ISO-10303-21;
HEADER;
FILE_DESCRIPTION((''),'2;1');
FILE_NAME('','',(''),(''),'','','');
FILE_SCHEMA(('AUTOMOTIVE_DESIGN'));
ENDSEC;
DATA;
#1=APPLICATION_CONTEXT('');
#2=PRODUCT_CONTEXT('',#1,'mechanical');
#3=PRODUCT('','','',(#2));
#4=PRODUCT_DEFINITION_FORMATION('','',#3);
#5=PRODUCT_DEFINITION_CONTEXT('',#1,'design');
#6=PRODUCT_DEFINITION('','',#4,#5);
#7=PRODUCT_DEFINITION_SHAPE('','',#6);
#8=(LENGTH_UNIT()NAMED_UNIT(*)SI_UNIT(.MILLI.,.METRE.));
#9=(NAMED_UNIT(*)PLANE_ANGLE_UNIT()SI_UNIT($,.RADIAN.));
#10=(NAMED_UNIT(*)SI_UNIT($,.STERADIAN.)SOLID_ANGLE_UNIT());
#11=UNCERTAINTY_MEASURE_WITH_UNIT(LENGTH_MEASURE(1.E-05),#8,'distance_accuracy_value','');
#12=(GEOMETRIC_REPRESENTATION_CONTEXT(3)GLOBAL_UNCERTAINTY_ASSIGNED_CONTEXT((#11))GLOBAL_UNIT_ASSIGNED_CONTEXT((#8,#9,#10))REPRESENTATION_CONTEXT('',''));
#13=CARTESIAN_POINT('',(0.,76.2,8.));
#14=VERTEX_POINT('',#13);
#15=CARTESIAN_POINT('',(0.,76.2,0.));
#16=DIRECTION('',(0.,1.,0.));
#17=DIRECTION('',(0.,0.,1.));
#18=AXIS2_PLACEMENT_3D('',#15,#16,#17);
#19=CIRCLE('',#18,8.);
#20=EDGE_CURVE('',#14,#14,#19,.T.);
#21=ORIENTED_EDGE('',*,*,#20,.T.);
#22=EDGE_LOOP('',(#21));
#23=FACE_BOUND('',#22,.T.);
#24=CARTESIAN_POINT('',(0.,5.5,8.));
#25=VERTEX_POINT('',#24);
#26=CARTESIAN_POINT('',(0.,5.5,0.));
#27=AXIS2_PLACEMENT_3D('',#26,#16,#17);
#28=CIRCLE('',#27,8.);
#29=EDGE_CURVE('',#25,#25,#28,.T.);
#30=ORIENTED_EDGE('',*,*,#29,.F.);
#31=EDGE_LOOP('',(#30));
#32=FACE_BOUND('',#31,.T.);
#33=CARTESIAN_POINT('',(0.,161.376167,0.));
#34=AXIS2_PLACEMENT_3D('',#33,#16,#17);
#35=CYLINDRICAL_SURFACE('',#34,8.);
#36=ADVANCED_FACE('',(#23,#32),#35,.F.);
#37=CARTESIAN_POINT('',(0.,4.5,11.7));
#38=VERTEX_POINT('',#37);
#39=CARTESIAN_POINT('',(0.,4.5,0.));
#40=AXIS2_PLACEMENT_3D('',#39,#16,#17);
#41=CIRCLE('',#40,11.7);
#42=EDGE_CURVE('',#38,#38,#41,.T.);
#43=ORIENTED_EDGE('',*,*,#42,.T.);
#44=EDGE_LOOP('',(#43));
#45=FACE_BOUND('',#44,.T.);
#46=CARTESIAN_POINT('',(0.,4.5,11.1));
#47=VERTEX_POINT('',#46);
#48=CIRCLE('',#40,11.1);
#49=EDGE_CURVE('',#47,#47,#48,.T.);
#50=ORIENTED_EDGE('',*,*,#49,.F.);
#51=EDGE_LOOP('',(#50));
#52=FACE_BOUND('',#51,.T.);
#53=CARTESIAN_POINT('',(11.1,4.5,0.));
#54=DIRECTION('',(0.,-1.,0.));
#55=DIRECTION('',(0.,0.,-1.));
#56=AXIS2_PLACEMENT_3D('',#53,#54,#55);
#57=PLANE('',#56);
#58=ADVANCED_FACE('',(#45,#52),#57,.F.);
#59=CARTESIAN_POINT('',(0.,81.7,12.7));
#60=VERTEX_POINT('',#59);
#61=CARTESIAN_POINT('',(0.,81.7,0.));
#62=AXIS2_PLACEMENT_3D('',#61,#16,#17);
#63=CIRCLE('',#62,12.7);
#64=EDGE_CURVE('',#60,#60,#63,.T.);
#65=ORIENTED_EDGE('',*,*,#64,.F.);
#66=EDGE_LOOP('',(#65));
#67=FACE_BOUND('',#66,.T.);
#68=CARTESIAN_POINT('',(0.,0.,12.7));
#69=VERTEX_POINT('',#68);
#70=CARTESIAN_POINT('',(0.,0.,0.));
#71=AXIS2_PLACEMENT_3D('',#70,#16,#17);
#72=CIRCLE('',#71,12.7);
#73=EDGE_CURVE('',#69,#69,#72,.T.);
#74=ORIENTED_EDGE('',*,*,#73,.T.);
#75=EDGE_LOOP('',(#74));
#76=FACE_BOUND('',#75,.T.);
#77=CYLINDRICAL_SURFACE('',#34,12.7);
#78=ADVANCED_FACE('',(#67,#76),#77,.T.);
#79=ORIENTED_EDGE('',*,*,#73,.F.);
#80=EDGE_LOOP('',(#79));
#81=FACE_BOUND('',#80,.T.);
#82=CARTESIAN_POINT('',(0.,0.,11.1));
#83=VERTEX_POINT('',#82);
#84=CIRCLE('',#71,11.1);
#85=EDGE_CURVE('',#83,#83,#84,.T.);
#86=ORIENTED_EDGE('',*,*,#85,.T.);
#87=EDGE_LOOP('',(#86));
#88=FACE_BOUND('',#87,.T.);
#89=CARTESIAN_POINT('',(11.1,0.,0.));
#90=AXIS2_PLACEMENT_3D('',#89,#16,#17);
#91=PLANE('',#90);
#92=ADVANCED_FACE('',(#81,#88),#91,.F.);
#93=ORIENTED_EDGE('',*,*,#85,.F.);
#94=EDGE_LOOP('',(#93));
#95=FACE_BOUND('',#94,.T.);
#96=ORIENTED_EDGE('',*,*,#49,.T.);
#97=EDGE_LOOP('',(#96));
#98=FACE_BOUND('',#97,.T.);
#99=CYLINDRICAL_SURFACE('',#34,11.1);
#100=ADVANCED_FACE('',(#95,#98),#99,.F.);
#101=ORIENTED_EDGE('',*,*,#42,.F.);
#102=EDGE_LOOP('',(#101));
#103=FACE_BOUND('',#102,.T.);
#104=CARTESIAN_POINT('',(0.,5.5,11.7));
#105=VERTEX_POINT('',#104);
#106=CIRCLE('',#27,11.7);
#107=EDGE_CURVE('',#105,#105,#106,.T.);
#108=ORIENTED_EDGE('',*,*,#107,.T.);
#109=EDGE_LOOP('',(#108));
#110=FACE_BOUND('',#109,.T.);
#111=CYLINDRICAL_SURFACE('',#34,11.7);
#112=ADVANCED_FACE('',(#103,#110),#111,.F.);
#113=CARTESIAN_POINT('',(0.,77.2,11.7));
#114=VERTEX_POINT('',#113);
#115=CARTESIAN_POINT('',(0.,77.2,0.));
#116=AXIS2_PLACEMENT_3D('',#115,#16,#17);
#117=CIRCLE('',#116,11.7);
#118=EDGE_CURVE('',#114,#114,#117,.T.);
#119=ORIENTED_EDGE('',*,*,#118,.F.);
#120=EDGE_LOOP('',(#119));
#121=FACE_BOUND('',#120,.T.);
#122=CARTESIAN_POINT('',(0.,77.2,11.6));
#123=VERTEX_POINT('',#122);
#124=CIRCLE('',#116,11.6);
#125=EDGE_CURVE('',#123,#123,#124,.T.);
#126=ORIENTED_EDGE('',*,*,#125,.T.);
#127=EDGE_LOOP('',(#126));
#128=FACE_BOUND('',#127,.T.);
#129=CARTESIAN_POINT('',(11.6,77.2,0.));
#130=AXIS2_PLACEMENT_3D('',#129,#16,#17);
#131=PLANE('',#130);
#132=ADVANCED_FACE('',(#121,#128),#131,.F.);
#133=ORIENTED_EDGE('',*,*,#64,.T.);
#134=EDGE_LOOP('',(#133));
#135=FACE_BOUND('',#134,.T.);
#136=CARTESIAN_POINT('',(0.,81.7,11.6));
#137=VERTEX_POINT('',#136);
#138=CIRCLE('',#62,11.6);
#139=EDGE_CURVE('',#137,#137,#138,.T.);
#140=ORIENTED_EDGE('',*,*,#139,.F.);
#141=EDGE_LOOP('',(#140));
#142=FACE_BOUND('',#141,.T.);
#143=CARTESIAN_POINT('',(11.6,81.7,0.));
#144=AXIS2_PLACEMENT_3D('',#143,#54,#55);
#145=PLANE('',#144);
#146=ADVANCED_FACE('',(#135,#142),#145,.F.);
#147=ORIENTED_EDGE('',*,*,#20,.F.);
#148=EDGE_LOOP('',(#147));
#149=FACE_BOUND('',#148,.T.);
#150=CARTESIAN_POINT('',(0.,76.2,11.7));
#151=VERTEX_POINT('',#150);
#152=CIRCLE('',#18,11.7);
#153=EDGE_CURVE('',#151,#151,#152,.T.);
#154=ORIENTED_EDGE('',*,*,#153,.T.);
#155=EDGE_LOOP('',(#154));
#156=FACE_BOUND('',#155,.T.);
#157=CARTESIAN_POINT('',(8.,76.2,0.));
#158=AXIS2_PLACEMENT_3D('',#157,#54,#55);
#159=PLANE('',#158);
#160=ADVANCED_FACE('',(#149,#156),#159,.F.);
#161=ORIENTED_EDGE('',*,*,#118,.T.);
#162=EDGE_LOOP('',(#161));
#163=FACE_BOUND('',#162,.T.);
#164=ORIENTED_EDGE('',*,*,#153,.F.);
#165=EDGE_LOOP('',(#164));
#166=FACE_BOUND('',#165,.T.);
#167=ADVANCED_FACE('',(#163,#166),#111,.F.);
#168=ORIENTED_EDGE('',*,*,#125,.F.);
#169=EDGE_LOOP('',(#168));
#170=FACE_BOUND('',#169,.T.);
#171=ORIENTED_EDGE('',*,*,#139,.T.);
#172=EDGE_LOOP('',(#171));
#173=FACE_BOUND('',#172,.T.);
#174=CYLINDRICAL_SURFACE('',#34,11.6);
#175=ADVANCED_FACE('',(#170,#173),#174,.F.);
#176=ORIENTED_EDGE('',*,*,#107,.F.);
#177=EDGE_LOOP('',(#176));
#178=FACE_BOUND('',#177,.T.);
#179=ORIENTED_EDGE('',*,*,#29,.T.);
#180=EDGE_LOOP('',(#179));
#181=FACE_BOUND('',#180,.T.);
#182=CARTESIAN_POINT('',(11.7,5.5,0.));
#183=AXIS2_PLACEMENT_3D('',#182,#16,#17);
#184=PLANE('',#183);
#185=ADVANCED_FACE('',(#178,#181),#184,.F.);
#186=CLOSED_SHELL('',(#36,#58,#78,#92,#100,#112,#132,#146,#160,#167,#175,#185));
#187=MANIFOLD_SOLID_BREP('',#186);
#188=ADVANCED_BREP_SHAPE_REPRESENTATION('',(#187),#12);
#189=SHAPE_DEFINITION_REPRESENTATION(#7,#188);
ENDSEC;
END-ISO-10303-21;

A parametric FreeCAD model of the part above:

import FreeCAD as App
import Part
import Sketcher

V = App.Vector
Q = App.Units.Quantity


def add_polygon(sketch, points):
    """Adds a closed chain of lines whose ends are joined by coincident constraints."""
    first, n = sketch.GeometryCount, len(points)
    for a, b in zip(points, points[1:] + points[:1]):
        sketch.addGeometry(Part.LineSegment(App.Vector(*a, 0), App.Vector(*b, 0)), False)
    for i in range(n):
        sketch.addConstraint(Sketcher.Constraint("Coincident", first + i, 2, first + (i + 1) % n, 1))

doc = App.newDocument("Part")
params = doc.addObject("Spreadsheet::Sheet", "Params")
for row, (alias, value) in enumerate([
    ("sketch1_height", "1 mm"),
    ("sketch1_width", "1.6 mm"),
    ("sketch1_width2", "1.1 mm"),
    ("sketch1_width3", "0.1 mm"),
    ("sketch1_width4", "3.7 mm"),
    ("revolution_angle", "360 deg"),
], start=1):
    params.set(f"A{row}", alias)
    params.set(f"B{row}", "=" + value)
    params.setAlias(f"B{row}", alias)

body = doc.addObject("PartDesign::Body", "Body")

# Sketch on XY plane
sketch1 = body.newObject("Sketcher::SketchObject", "Sketch")
sketch1.AttachmentSupport = (doc.getObject("XY_Plane"), [""])
sketch1.MapMode = "FlatFace"
add_polygon(sketch1, [(11.1, 4.5), (11.1, 0), (12.7, 0), (12.7, 81.7), (11.6, 81.7), (11.6, 77.2), (11.7, 77.2), (11.7, 76.2), (8, 76.2), (8, 5.5), (11.7, 5.5), (11.7, 4.5)])  # lines 0-11
sketch1.addConstraint(Sketcher.Constraint("Vertical", 0))
sketch1.addConstraint(Sketcher.Constraint("Horizontal", 1))
sketch1.addConstraint(Sketcher.Constraint("Vertical", 2))
sketch1.addConstraint(Sketcher.Constraint("Horizontal", 3))
sketch1.addConstraint(Sketcher.Constraint("Vertical", 4))
sketch1.addConstraint(Sketcher.Constraint("Horizontal", 5))
sketch1.addConstraint(Sketcher.Constraint("Vertical", 6))
sketch1.addConstraint(Sketcher.Constraint("Horizontal", 7))
sketch1.addConstraint(Sketcher.Constraint("Vertical", 8))
sketch1.addConstraint(Sketcher.Constraint("Horizontal", 9))
sketch1.addConstraint(Sketcher.Constraint("Vertical", 10))
sketch1.addConstraint(Sketcher.Constraint("Horizontal", 11))
sketch1.addConstraint(Sketcher.Constraint("PointOnObject", 0, 2, -1))
sketch1.addConstraint(Sketcher.Constraint("Vertical", 6, 2, 9, 2))
sketch1.addConstraint(Sketcher.Constraint("Equal", 0, 4))
sketch1.addConstraint(Sketcher.Constraint("Equal", 6, 10))
sketch1.addConstraint(Sketcher.Constraint("DistanceY", 6, 2, 6, 1, Q("1 mm")))
sketch1.addConstraint(Sketcher.Constraint("DistanceX", 1, 1, 1, 2, Q("1.6 mm")))
sketch1.addConstraint(Sketcher.Constraint("DistanceX", 3, 2, 3, 1, Q("1.1 mm")))
sketch1.addConstraint(Sketcher.Constraint("DistanceX", 5, 1, 5, 2, Q("0.1 mm")))
sketch1.addConstraint(Sketcher.Constraint("DistanceX", 7, 2, 7, 1, Q("3.7 mm")))
sketch1.addConstraint(Sketcher.Constraint("DistanceY", 0, 2, 0, 1, Q("4.5 mm")))
sketch1.addConstraint(Sketcher.Constraint("DistanceY", 2, 1, 2, 2, Q("81.7 mm")))
sketch1.addConstraint(Sketcher.Constraint("DistanceX", -1, 1, 7, 2, Q("8 mm")))
sketch1.setExpression("Constraints[28]", "Params.sketch1_height")
sketch1.setExpression("Constraints[29]", "Params.sketch1_width")
sketch1.setExpression("Constraints[30]", "Params.sketch1_width2")
sketch1.setExpression("Constraints[31]", "Params.sketch1_width3")
sketch1.setExpression("Constraints[32]", "Params.sketch1_width4")
revolution = body.newObject("PartDesign::Revolution", "Revolution")
revolution.Profile = sketch1
revolution.ReferenceAxis = (sketch1, ["V_Axis"])
revolution.setExpression("Angle", "Params.revolution_angle")

doc.recompute()
